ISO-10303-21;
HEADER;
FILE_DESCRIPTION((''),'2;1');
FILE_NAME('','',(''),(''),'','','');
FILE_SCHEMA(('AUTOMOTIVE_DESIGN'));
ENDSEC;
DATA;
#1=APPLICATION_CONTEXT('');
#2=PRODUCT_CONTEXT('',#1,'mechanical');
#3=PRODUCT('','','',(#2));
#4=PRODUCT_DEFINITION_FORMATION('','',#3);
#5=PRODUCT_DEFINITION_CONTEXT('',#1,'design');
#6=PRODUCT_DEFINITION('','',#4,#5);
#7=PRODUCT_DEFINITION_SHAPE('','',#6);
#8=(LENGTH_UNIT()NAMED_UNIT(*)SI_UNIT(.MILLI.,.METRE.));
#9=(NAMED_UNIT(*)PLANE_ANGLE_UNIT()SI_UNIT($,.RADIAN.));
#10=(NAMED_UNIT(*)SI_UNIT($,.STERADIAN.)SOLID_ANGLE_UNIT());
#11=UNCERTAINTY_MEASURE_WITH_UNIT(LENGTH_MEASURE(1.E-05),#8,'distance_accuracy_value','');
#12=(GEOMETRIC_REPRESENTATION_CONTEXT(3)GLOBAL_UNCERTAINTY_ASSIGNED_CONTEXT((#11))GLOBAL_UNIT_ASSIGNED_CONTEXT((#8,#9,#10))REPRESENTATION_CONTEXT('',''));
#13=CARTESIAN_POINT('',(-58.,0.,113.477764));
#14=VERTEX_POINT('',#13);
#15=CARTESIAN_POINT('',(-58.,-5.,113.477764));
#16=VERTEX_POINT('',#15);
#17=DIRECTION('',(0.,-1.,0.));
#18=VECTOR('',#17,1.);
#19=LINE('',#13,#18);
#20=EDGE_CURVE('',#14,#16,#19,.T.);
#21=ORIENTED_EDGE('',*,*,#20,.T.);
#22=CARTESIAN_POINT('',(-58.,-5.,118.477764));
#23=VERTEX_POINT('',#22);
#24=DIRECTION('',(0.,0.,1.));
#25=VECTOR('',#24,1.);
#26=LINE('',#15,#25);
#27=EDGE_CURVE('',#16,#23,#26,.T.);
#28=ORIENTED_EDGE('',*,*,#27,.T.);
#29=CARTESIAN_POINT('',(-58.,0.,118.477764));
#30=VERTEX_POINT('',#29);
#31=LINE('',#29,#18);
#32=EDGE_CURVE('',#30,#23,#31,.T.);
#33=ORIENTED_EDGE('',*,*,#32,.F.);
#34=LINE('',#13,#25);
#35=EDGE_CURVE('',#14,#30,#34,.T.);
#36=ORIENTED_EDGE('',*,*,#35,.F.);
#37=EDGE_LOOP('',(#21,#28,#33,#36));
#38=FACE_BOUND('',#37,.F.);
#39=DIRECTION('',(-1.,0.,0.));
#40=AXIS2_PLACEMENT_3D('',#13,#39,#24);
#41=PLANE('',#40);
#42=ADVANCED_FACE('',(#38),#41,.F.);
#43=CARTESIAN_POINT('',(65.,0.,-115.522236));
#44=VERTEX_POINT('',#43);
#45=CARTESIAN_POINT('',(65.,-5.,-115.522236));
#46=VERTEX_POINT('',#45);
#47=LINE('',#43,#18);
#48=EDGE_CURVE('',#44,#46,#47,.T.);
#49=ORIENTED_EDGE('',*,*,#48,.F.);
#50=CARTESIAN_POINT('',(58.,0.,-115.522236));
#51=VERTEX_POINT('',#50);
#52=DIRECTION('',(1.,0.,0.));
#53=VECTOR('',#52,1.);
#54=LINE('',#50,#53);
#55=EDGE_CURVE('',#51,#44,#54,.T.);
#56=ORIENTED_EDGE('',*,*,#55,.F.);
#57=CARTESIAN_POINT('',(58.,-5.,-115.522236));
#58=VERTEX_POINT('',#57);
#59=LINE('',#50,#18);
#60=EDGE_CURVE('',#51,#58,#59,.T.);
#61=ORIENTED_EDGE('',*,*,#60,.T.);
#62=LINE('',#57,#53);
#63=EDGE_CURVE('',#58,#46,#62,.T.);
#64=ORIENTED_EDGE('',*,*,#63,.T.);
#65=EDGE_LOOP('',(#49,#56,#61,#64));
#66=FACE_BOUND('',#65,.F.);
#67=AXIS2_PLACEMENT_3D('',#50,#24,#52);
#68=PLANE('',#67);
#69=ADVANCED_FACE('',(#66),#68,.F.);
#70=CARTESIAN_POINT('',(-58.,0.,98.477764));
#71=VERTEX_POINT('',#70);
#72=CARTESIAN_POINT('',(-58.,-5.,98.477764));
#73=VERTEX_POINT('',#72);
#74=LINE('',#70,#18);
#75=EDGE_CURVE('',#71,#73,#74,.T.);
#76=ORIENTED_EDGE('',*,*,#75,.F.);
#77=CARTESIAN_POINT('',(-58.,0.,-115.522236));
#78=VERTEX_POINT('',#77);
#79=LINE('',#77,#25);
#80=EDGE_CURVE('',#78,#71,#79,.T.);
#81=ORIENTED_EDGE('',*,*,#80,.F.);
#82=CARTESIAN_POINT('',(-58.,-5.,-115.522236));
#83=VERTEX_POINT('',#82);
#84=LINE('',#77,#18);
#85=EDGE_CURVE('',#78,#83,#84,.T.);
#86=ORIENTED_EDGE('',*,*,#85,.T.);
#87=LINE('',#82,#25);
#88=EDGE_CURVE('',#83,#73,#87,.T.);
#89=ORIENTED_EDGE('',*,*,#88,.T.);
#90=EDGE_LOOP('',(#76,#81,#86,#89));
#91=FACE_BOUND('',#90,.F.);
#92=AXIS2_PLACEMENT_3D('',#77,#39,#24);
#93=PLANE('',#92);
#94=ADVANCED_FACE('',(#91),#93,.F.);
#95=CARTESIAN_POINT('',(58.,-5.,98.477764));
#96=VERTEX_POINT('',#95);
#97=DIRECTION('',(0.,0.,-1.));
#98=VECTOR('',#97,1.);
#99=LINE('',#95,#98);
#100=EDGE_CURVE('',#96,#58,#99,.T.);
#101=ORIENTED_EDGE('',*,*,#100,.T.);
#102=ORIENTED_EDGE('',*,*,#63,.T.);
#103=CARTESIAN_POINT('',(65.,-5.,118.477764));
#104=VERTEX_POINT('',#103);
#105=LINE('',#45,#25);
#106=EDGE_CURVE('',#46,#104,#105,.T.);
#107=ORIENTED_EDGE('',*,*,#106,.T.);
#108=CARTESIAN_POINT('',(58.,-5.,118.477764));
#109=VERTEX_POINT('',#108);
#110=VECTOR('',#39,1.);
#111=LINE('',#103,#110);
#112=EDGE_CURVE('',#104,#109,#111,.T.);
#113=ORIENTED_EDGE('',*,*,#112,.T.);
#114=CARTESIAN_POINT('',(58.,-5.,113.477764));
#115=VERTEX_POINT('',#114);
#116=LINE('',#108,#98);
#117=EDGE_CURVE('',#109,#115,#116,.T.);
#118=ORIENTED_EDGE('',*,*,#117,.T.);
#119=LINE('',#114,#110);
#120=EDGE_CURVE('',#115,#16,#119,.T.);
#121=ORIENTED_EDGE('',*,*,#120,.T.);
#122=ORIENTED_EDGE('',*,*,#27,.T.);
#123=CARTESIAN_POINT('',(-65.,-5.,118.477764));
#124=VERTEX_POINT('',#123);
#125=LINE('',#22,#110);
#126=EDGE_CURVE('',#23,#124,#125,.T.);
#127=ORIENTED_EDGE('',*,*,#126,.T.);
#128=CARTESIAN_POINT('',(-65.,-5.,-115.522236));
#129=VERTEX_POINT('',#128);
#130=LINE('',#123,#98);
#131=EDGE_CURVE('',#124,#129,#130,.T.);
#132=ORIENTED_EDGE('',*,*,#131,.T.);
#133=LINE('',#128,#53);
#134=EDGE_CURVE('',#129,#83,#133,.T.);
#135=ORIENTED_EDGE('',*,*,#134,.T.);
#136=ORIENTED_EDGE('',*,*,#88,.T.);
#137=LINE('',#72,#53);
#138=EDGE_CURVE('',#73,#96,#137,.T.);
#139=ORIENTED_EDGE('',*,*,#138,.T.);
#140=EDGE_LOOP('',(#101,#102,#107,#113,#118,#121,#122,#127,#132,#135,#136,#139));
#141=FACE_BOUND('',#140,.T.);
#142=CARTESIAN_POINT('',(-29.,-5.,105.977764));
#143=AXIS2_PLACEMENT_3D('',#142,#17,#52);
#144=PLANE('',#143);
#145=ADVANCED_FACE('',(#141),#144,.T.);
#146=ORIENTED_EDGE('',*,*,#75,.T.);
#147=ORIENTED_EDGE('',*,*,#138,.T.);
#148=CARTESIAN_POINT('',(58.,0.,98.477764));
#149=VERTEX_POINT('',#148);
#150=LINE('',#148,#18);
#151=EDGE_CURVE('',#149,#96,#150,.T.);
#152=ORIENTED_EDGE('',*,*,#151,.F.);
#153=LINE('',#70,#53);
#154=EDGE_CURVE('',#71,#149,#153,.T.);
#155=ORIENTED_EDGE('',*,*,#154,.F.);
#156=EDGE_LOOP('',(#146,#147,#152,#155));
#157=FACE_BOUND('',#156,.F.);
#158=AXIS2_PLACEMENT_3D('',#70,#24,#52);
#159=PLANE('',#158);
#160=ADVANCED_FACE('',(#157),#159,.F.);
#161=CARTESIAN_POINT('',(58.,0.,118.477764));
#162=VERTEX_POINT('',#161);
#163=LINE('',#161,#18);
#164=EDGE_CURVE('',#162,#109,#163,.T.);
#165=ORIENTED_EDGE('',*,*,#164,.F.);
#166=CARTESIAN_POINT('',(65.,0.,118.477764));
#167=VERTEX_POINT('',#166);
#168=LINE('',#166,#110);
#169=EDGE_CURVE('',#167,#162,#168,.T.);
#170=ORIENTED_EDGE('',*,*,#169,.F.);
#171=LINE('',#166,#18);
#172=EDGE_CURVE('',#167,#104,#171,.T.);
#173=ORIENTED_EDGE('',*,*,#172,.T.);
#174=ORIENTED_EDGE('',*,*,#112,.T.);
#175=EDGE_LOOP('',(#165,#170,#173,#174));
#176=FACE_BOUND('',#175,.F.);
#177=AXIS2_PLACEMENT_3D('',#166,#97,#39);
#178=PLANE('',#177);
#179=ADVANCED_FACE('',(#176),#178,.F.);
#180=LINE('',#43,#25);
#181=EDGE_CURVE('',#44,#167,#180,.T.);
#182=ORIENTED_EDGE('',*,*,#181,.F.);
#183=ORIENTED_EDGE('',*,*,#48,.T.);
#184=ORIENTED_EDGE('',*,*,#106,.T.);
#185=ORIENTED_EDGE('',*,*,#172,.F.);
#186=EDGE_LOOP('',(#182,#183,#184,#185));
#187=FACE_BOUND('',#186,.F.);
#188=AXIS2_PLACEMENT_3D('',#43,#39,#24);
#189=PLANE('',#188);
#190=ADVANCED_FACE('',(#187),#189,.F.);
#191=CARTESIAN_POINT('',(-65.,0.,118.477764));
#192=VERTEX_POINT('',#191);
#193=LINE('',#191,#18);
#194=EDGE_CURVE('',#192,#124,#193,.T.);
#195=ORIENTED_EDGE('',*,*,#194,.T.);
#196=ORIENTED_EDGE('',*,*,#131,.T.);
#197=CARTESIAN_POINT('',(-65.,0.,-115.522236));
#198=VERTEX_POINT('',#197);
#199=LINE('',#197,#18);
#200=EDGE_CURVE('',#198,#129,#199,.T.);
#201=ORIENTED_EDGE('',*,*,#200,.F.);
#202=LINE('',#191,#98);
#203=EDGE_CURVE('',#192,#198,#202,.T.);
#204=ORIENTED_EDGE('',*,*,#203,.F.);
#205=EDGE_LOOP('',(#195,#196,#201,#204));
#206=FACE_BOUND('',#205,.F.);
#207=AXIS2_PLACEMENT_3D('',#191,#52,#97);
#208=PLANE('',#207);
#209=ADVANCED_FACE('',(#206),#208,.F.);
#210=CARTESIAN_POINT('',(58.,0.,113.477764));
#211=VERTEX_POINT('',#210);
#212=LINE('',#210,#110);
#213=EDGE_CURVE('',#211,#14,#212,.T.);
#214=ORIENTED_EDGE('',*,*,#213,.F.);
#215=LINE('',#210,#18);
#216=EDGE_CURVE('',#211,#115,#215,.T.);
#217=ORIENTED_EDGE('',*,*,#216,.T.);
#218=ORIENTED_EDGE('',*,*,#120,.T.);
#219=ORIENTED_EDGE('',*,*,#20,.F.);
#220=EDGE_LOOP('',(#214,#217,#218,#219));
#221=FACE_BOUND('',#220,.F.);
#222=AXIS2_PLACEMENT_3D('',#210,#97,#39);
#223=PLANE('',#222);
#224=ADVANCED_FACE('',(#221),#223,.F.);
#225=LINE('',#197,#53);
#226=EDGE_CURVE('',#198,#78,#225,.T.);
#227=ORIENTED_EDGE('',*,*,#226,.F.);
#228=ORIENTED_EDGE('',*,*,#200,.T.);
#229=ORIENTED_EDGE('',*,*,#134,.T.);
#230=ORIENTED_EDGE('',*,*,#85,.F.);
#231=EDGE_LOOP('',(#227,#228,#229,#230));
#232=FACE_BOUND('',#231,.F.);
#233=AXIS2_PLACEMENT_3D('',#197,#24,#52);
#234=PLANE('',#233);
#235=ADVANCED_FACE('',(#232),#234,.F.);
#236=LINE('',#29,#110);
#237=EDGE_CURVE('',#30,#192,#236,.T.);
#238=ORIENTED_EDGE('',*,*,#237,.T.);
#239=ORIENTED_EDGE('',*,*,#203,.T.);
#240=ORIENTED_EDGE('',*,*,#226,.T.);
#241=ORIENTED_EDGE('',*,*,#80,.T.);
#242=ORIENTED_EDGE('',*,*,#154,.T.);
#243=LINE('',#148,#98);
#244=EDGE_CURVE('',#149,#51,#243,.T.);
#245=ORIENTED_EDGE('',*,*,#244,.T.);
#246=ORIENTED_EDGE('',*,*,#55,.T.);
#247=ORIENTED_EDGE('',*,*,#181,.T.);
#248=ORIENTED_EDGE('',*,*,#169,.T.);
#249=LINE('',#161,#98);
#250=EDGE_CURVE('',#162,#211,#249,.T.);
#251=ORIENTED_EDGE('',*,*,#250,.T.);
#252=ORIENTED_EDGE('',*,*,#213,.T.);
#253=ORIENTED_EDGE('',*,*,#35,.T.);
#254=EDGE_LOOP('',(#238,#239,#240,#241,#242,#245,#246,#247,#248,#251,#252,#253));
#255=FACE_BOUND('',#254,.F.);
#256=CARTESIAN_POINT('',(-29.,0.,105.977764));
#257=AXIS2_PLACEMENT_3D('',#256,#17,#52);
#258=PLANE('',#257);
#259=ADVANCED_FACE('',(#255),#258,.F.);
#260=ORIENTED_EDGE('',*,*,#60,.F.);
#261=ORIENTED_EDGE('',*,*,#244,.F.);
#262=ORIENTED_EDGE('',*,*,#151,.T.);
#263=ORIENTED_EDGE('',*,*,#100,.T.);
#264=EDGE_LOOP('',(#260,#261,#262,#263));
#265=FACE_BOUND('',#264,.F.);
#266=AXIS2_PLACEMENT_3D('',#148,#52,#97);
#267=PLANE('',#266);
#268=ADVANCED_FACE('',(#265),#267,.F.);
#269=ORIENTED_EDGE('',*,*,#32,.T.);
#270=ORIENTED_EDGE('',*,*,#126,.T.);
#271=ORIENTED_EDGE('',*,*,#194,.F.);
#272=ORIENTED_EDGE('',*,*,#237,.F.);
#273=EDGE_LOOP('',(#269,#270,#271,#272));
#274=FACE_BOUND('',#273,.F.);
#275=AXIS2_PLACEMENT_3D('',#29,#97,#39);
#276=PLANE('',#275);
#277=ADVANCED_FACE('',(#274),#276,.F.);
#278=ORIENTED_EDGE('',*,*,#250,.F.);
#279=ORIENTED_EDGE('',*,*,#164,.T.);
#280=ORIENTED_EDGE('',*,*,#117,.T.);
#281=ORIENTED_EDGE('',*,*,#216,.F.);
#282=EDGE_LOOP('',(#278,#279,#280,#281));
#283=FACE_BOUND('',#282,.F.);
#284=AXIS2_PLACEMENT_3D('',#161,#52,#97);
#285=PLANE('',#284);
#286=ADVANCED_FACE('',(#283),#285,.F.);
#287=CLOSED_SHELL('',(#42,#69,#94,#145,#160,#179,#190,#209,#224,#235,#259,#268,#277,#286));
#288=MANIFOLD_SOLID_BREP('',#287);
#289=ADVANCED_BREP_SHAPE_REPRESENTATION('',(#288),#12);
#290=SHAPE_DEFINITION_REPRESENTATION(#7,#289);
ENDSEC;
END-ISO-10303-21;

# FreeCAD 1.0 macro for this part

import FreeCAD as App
import Part
import Sketcher

doc = App.newDocument("Part")
params = doc.addObject("Spreadsheet::Sheet", "Params")
for row, (alias, value) in enumerate([
    ("sketch1_width", "116 mm"),
    ("sketch1_width2", "7 mm"),
    ("sketch1_height", "214 mm"),
    ("sketch1_height2", "234 mm"),
    ("sketch1_height3", "5 mm"),
    ("pad1_length", "5 mm"),
], start=1):
    params.set(f"A{row}", alias)
    params.set(f"B{row}", "=" + value)
    params.setAlias(f"B{row}", alias)

body = doc.addObject("PartDesign::Body", "Body")

sketch1 = doc.addObject("Sketcher::SketchObject", "Sketch")
body.addObject(sketch1)
sketch1.AttachmentSupport = (doc.XZ_Plane, [""])
sketch1.MapMode = "FlatFace"
sketch1.addGeometry([
    Part.LineSegment(App.Vector(-58, 98, 0), App.Vector(58, 98, 0)),
    Part.LineSegment(App.Vector(58, 98, 0), App.Vector(58, -116, 0)),
    Part.LineSegment(App.Vector(58, -116, 0), App.Vector(65, -116, 0)),
    Part.LineSegment(App.Vector(65, -116, 0), App.Vector(65, 118, 0)),
    Part.LineSegment(App.Vector(65, 118, 0), App.Vector(58, 118, 0)),
    Part.LineSegment(App.Vector(58, 118, 0), App.Vector(58, 113, 0)),
    Part.LineSegment(App.Vector(58, 113, 0), App.Vector(-58, 113, 0)),
    Part.LineSegment(App.Vector(-58, 113, 0), App.Vector(-58, 118, 0)),
    Part.LineSegment(App.Vector(-58, 118, 0), App.Vector(-65, 118, 0)),
    Part.LineSegment(App.Vector(-65, 118, 0), App.Vector(-65, -116, 0)),
    Part.LineSegment(App.Vector(-65, -116, 0), App.Vector(-58, -116, 0)),
    Part.LineSegment(App.Vector(-58, -116, 0), App.Vector(-58, 98, 0)),
], False)
sketch1.addConstraint([
    Sketcher.Constraint("Coincident", 0, 2, 1, 1),
    Sketcher.Constraint("Coincident", 1, 2, 2, 1),
    Sketcher.Constraint("Coincident", 2, 2, 3, 1),
    Sketcher.Constraint("Coincident", 3, 2, 4, 1),
    Sketcher.Constraint("Coincident", 4, 2, 5, 1),
    Sketcher.Constraint("Coincident", 5, 2, 6, 1),
    Sketcher.Constraint("Coincident", 6, 2, 7, 1),
    Sketcher.Constraint("Coincident", 7, 2, 8, 1),
    Sketcher.Constraint("Coincident", 8, 2, 9, 1),
    Sketcher.Constraint("Coincident", 9, 2, 10, 1),
    Sketcher.Constraint("Coincident", 10, 2, 11, 1),
    Sketcher.Constraint("Coincident", 11, 2, 0, 1),
    Sketcher.Constraint("Horizontal", 0),
    Sketcher.Constraint("Vertical", 1),
    Sketcher.Constraint("Horizontal", 2),
    Sketcher.Constraint("Vertical", 3),
    Sketcher.Constraint("Horizontal", 4),
    Sketcher.Constraint("Vertical", 5),
    Sketcher.Constraint("Horizontal", 6),
    Sketcher.Constraint("Vertical", 7),
    Sketcher.Constraint("Horizontal", 8),
    Sketcher.Constraint("Vertical", 9),
    Sketcher.Constraint("Horizontal", 10),
    Sketcher.Constraint("Vertical", 11),
    Sketcher.Constraint("Symmetric", 4, 2, 7, 2, -2),
    Sketcher.Constraint("Symmetric", 2, 2, 9, 2, -2),
    Sketcher.Constraint("Vertical", 1, 2, 4, 2),
    Sketcher.Constraint("Vertical", 7, 2, 10, 2),
    Sketcher.Constraint("DistanceX", 0, 1, 0, 2, 116.0),
    Sketcher.Constraint("DistanceX", 2, 1, 2, 2, 7.0),
    Sketcher.Constraint("DistanceY", 1, 2, 1, 1, 214.0),
    Sketcher.Constraint("DistanceY", 3, 1, 3, 2, 234.0),
    Sketcher.Constraint("DistanceY", 5, 2, 5, 1, 5.0),
    Sketcher.Constraint("DistanceY", -1, 1, 0, 2, 98.477764),
])
sketch1.setExpression("Constraints[28]", "Params.sketch1_width")
sketch1.setExpression("Constraints[29]", "Params.sketch1_width2")
sketch1.setExpression("Constraints[30]", "Params.sketch1_height")
sketch1.setExpression("Constraints[31]", "Params.sketch1_height2")
sketch1.setExpression("Constraints[32]", "Params.sketch1_height3")
pad1 = doc.addObject("PartDesign::Pad", "Pad")
body.addObject(pad1)
pad1.Profile = sketch1
pad1.setExpression("Length", "Params.pad1_length")

doc.recompute()
